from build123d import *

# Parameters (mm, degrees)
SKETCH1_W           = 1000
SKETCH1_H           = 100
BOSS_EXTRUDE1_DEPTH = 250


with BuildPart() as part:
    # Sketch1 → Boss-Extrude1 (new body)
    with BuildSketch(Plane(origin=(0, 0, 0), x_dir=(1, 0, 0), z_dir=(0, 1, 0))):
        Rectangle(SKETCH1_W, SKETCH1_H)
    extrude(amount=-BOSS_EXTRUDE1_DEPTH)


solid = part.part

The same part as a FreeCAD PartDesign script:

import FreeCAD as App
import Part
import Sketcher
Q = App.Units.Quantity

doc = App.newDocument("Part")
body = doc.addObject("PartDesign::Body", "Body")

sketch1 = body.newObject("Sketcher::SketchObject", "Sketch")
sketch1.AttachmentSupport = (doc.getObject("XZ_Plane"), [""])
sketch1.MapMode = "FlatFace"
sketch1.addGeometry([
    Part.LineSegment(App.Vector(-500, -50, 0), App.Vector(-500, 50, 0)),
    Part.LineSegment(App.Vector(-500, 50, 0), App.Vector(500, 50, 0)),
    Part.LineSegment(App.Vector(500, 50, 0), App.Vector(500, -50, 0)),
    Part.LineSegment(App.Vector(500, -50, 0), App.Vector(-500, -50, 0)),
], False)
sketch1.addConstraint([
    Sketcher.Constraint("Coincident", 0, 2, 1, 1),
    Sketcher.Constraint("Coincident", 1, 2, 2, 1),
    Sketcher.Constraint("Coincident", 2, 2, 3, 1),
    Sketcher.Constraint("Coincident", 3, 2, 0, 1),
    Sketcher.Constraint("Vertical", 0),
    Sketcher.Constraint("Horizontal", 1),
    Sketcher.Constraint("Vertical", 2),
    Sketcher.Constraint("Horizontal", 3),
    Sketcher.Constraint("Symmetric", 0, 2, 2, 2, -1, 1),
    Sketcher.Constraint("DistanceX", 1, 1, 1, 2, Q("1000 mm")),
    Sketcher.Constraint("DistanceY", 0, 1, 0, 2, Q("100 mm")),
])
pad1 = body.newObject("PartDesign::Pad", "Pad")
pad1.Profile = sketch1
pad1.Length = 250

doc.recompute()
